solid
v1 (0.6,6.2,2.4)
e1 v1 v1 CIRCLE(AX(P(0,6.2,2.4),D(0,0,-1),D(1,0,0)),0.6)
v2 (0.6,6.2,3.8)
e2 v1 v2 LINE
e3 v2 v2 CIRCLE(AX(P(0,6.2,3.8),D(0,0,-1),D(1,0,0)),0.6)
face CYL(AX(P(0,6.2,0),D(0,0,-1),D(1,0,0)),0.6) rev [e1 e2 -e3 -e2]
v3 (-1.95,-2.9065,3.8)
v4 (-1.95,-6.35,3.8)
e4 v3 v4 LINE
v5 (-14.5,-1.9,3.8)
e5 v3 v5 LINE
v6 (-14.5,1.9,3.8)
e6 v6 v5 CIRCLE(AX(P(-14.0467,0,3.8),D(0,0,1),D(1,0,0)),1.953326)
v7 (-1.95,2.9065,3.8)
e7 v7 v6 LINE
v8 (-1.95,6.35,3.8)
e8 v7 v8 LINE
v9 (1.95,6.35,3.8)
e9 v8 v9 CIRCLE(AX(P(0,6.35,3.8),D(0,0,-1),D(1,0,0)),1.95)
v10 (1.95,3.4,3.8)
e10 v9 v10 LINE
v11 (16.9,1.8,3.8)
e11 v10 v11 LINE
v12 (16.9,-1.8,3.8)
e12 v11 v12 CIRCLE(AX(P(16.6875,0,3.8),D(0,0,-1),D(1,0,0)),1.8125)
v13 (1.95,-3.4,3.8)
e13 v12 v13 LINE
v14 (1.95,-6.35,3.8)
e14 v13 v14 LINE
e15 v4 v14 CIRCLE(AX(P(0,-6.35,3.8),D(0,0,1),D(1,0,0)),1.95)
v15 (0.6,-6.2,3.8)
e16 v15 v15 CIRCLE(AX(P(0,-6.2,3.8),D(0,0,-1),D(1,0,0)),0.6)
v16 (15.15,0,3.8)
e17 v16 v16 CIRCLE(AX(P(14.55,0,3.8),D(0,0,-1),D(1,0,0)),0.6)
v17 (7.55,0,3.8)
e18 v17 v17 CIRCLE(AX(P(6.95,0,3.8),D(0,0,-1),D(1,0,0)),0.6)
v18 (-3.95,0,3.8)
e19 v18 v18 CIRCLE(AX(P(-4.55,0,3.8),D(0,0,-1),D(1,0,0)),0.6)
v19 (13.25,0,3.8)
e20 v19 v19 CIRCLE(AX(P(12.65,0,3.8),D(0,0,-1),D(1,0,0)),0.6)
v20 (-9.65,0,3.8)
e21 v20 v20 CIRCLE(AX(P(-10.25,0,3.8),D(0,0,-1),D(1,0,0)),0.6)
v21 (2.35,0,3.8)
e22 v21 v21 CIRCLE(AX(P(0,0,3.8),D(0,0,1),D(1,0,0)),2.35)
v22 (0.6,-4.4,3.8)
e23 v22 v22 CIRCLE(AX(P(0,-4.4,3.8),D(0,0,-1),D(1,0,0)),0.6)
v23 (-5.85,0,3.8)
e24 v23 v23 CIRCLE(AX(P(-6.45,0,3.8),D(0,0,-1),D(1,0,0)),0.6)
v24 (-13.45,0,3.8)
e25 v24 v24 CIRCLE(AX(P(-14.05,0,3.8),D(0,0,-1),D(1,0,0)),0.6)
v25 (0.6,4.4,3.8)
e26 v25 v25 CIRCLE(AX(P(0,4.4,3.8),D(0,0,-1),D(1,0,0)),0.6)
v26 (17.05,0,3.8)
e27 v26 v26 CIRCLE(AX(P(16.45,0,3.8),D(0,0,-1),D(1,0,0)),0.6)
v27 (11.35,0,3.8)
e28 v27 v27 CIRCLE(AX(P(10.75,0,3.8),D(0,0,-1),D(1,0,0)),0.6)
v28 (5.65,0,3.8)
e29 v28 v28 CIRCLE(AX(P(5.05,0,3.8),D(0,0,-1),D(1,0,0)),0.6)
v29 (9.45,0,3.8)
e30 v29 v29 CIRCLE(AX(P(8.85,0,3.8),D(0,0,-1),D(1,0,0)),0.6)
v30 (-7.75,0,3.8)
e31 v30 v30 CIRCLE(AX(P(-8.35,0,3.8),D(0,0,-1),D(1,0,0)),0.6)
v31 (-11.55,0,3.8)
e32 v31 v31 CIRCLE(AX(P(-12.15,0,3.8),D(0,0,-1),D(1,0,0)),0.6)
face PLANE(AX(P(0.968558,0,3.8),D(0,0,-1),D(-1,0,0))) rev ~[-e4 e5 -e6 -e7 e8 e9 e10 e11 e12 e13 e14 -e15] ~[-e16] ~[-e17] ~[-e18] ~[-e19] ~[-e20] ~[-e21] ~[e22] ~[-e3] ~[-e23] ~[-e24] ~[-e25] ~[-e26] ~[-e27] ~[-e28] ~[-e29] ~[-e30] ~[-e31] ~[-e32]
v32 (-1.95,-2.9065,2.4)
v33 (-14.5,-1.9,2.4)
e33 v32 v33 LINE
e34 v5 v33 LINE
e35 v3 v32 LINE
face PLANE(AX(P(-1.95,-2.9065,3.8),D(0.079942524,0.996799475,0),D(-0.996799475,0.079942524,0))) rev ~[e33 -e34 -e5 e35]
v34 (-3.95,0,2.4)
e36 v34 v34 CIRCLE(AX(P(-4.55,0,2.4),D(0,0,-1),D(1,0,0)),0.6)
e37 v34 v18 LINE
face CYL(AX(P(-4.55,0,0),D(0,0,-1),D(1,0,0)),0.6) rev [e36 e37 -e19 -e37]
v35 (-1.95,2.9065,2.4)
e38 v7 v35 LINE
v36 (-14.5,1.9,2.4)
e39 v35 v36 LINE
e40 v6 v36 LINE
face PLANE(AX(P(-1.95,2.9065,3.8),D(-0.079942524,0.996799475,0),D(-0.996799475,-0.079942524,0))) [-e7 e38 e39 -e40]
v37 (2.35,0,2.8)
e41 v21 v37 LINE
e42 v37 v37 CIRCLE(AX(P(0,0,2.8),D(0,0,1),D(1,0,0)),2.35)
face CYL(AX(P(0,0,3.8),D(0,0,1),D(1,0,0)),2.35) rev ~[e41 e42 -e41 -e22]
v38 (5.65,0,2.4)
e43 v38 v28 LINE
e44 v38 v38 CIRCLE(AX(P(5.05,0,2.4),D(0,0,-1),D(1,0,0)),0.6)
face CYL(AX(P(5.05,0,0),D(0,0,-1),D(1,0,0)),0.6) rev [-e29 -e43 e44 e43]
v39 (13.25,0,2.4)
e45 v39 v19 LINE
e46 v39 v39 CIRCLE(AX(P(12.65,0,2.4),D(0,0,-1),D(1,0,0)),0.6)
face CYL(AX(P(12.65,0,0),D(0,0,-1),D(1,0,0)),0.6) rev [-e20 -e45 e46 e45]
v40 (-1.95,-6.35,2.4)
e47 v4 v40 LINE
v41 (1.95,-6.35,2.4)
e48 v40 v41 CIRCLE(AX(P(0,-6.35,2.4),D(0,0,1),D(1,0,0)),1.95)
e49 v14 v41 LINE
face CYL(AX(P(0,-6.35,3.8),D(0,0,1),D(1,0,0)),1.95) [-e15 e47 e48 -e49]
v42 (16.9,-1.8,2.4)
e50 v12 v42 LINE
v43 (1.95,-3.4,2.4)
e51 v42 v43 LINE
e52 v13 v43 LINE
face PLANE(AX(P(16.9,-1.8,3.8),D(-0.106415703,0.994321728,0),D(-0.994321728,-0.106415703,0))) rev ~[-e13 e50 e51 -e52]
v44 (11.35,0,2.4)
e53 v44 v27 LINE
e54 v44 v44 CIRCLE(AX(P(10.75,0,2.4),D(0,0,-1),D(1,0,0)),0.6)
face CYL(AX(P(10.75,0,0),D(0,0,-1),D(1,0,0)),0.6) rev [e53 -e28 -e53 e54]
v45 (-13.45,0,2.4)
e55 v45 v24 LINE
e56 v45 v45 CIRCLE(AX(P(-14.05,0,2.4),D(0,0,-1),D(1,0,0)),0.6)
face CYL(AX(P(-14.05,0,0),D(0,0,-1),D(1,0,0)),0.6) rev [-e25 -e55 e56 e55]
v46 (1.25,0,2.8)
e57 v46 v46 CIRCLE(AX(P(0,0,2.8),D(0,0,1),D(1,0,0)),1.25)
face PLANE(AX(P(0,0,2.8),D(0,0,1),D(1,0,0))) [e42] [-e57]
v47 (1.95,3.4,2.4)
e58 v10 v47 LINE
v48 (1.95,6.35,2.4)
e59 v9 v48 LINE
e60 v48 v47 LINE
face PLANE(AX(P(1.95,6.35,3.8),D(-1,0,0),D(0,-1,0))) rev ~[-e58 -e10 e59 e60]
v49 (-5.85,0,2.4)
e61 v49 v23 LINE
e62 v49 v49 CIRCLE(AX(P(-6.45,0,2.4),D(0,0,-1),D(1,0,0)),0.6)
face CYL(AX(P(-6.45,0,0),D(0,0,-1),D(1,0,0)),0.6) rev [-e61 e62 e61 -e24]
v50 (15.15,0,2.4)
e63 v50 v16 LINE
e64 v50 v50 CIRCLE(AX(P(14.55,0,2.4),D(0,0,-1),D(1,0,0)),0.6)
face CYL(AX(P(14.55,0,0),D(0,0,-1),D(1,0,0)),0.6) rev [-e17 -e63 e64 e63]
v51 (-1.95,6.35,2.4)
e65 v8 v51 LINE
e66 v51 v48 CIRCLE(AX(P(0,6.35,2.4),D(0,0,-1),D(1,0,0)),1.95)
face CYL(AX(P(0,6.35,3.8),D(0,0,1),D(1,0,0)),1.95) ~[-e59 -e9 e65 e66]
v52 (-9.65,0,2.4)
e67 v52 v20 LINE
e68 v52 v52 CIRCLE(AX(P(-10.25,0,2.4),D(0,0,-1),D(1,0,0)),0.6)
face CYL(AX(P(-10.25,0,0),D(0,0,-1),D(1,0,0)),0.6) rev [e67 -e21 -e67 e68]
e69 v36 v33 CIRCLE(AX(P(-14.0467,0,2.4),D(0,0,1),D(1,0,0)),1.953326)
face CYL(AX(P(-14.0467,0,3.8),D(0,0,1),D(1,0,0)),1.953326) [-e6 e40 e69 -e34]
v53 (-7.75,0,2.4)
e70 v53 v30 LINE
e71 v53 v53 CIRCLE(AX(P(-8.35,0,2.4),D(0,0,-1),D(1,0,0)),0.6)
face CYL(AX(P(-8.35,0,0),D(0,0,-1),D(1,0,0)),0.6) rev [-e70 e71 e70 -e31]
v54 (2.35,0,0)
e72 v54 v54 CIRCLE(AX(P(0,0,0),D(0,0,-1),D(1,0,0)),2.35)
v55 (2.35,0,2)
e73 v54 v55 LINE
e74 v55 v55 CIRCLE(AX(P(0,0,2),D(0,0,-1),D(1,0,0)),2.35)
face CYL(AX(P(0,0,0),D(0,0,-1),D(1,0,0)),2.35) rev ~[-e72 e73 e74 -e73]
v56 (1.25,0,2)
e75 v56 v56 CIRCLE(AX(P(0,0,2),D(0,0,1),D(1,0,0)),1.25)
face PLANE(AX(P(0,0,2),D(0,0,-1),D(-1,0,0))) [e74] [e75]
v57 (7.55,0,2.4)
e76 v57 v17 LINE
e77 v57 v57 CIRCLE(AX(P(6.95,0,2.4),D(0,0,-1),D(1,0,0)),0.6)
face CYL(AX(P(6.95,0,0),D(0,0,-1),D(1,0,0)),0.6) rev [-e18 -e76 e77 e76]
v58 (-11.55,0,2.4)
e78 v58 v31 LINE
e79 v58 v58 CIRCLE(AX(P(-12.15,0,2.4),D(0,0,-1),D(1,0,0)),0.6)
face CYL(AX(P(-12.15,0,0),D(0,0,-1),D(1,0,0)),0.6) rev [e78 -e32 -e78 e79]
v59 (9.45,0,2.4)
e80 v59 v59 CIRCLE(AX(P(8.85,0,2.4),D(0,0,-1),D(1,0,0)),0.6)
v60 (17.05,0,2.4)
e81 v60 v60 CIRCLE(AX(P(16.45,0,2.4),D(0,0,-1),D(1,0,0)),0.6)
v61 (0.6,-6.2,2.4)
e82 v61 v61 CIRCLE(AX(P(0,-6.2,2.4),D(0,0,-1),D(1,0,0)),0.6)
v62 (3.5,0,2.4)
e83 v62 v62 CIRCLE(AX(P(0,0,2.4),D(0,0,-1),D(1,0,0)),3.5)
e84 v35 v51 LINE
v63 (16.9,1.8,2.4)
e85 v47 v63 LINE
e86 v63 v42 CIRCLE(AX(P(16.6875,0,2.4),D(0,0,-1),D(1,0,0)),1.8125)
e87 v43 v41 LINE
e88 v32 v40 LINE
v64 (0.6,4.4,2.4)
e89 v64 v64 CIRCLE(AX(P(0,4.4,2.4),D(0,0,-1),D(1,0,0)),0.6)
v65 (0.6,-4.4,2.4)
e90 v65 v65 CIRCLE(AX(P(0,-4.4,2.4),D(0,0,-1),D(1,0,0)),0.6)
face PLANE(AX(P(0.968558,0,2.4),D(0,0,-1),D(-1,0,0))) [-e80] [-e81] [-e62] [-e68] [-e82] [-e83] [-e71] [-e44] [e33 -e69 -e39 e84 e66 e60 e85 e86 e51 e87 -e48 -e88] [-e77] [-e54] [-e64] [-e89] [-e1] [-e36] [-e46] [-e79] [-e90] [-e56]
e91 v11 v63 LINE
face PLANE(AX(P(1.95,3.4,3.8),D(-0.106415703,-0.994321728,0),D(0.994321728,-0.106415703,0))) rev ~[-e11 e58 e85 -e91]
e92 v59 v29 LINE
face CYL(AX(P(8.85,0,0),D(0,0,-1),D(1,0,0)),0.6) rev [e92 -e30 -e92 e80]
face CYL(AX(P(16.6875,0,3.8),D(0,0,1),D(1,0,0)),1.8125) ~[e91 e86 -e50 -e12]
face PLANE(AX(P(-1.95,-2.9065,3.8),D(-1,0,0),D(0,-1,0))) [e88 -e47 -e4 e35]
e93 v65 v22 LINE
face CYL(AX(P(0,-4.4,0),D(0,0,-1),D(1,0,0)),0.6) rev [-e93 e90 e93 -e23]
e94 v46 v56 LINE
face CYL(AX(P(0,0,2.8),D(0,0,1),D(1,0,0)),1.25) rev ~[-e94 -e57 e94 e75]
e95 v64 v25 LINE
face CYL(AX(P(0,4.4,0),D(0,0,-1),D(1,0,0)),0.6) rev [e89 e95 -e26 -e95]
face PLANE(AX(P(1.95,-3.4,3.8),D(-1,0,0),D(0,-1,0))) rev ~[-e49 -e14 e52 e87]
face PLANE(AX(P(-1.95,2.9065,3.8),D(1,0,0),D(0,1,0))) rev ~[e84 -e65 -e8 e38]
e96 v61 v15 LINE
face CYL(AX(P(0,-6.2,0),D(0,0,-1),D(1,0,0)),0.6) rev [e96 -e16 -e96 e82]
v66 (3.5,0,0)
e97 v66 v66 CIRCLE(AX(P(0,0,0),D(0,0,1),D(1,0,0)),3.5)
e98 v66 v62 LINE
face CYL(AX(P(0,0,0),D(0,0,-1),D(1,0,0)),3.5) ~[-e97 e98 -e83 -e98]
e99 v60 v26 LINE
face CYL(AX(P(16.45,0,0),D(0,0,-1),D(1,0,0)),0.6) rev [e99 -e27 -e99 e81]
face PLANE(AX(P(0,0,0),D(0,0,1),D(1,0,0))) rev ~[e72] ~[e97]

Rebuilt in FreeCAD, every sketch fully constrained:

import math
import FreeCAD as App
import Part
import Sketcher
from FreeCAD import Vector

doc = App.newDocument("Part")
body = doc.addObject("PartDesign::Body", "Body")

# Sketch on XY plane
sketch1 = body.newObject("Sketcher::SketchObject", "Sketch")
sketch1.AttachmentSupport = (doc.getObject("XY_Plane"), [""])
sketch1.MapMode = "FlatFace"
sketch1.addGeometry(Part.Circle(Vector(0, 0, 0), Vector(0, 0, 1), 3.5), False)
sketch1.addConstraint(Sketcher.Constraint("Coincident", 0, 3, -1, 1))
sketch1.addConstraint(Sketcher.Constraint("Diameter", 0, 7.0))
pad1 = body.newObject("PartDesign::Pad", "Pad")
pad1.Profile = sketch1
pad1.Length = 3.8

# Sketch on XY plane
sketch2 = body.newObject("Sketcher::SketchObject", "Sketch001")
sketch2.AttachmentSupport = (doc.getObject("XY_Plane"), [""])
sketch2.MapMode = "FlatFace"
sketch2.AttachmentOffset = App.Placement(Vector(0, 0, 3.8), App.Rotation())
sketch2.addGeometry(Part.Circle(Vector(0, 0, 0), Vector(0, 0, 1), 2.4), False)
sketch2.addConstraint(Sketcher.Constraint("Coincident", 0, 3, -1, 1))
sketch2.addConstraint(Sketcher.Constraint("Diameter", 0, 4.7))
pocket1 = body.newObject("PartDesign::Pocket", "Pocket")
pocket1.Profile = sketch2
pocket1.Length = 1

# Sketch on XY plane
sketch3 = body.newObject("Sketcher::SketchObject", "Sketch002")
sketch3.AttachmentSupport = (doc.getObject("XY_Plane"), [""])
sketch3.MapMode = "FlatFace"
sketch3.AttachmentOffset = App.Placement(Vector(0, 0, 2.8), App.Rotation())
sketch3.addGeometry(Part.Circle(Vector(0, 0, 0), Vector(0, 0, 1), 1.2), False)
sketch3.addConstraint(Sketcher.Constraint("Coincident", 0, 3, -1, 1))
sketch3.addConstraint(Sketcher.Constraint("Diameter", 0, 2.5))
pocket2 = body.newObject("PartDesign::Pocket", "Pocket001")
pocket2.Profile = sketch3
pocket2.Type = "ThroughAll"

# Sketch on XY plane
sketch4 = body.newObject("Sketcher::SketchObject", "Sketch003")
sketch4.AttachmentSupport = (doc.getObject("XY_Plane"), [""])
sketch4.MapMode = "FlatFace"
sketch4.addGeometry(Part.Circle(Vector(0, 0, 0), Vector(0, 0, 1), 2.4), False)
sketch4.addConstraint(Sketcher.Constraint("Coincident", 0, 3, -1, 1))
sketch4.addConstraint(Sketcher.Constraint("Diameter", 0, 4.7))
pocket3 = body.newObject("PartDesign::Pocket", "Pocket002")
pocket3.Profile = sketch4
pocket3.Length = 2
pocket3.Reversed = True

# Sketch on XY plane
sketch5 = body.newObject("Sketcher::SketchObject", "Sketch004")
sketch5.AttachmentSupport = (doc.getObject("XY_Plane"), [""])
sketch5.MapMode = "FlatFace"
sketch5.AttachmentOffset = App.Placement(Vector(0, 0, 3.8), App.Rotation())
sketch5.addGeometry(Part.LineSegment(Vector(-1.9, 6.3, 0), Vector(-1.9, 2.9, 0)), False)
sketch5.addGeometry(Part.LineSegment(Vector(-1.9, 2.9, 0), Vector(-14.5, 1.9, 0)), False)
sketch5.addGeometry(Part.ArcOfCircle(Part.Circle(Vector(-14, 0, 0), Vector(0, 0, 1), 2), math.radians(103), math.radians(257)), False)
sketch5.addGeometry(Part.LineSegment(Vector(-14.5, -1.9, 0), Vector(-1.9, -2.9, 0)), False)
sketch5.addGeometry(Part.LineSegment(Vector(-1.9, -2.9, 0), Vector(-1.9, -6.3, 0)), False)
sketch5.addGeometry(Part.ArcOfCircle(Part.Circle(Vector(0, -6.3, 0), Vector(0, 0, 1), 1.9), math.radians(180), math.radians(360)), False)
sketch5.addGeometry(Part.LineSegment(Vector(1.9, -6.3, 0), Vector(1.9, -3.4, 0)), False)
sketch5.addGeometry(Part.LineSegment(Vector(1.9, -3.4, 0), Vector(16.9, -1.8, 0)), False)
sketch5.addGeometry(Part.ArcOfCircle(Part.Circle(Vector(16.7, 0, 0), Vector(0, 0, 1), 1.8), math.radians(-83), math.radians(83)), False)
sketch5.addGeometry(Part.LineSegment(Vector(16.9, 1.8, 0), Vector(1.9, 3.4, 0)), False)
sketch5.addGeometry(Part.LineSegment(Vector(1.9, 3.4, 0), Vector(1.9, 6.3, 0)), False)
sketch5.addGeometry(Part.ArcOfCircle(Part.Circle(Vector(0, 6.3, 0), Vector(0, 0, 1), 1.9), math.radians(0), math.radians(180)), False)
sketch5.addGeometry(Part.Circle(Vector(0, 0, 0), Vector(0, 0, 1), 2.9), False)
sketch5.addConstraint(Sketcher.Constraint("Coincident", 0, 2, 1, 1))
sketch5.addConstraint(Sketcher.Constraint("Coincident", 1, 2, 2, 1))
sketch5.addConstraint(Sketcher.Constraint("Coincident", 2, 2, 3, 1))
sketch5.addConstraint(Sketcher.Constraint("Coincident", 3, 2, 4, 1))
sketch5.addConstraint(Sketcher.Constraint("Tangent", 4, 2, 5, 1))
sketch5.addConstraint(Sketcher.Constraint("Tangent", 5, 2, 6, 1))
sketch5.addConstraint(Sketcher.Constraint("Coincident", 6, 2, 7, 1))
sketch5.addConstraint(Sketcher.Constraint("Coincident", 7, 2, 8, 1))
sketch5.addConstraint(Sketcher.Constraint("Coincident", 8, 2, 9, 1))
sketch5.addConstraint(Sketcher.Constraint("Coincident", 9, 2, 10, 1))
sketch5.addConstraint(Sketcher.Constraint("Tangent", 10, 2, 11, 1))
sketch5.addConstraint(Sketcher.Constraint("Tangent", 11, 2, 0, 1))
sketch5.addConstraint(Sketcher.Constraint("Vertical", 0))
sketch5.addConstraint(Sketcher.Constraint("Vertical", 4))
sketch5.addConstraint(Sketcher.Constraint("Vertical", 6))
sketch5.addConstraint(Sketcher.Constraint("Vertical", 10))
sketch5.addConstraint(Sketcher.Constraint("Coincident", 12, 3, -1, 1))
sketch5.addConstraint(Sketcher.Constraint("Equal", 5, 11))
sketch5.addConstraint(Sketcher.Constraint("Symmetric", 5, 3, 11, 3, -1, 1))
sketch5.addConstraint(Sketcher.Constraint("Symmetric", 1, 2, 2, 2, -1))
sketch5.addConstraint(Sketcher.Constraint("Symmetric", 0, 2, 3, 2, -1))
sketch5.addConstraint(Sketcher.Constraint("Symmetric", 7, 2, 8, 2, -1))
sketch5.addConstraint(Sketcher.Constraint("Equal", 6, 10))
sketch5.addConstraint(Sketcher.Constraint("Radius", 5, 1.95))
sketch5.addConstraint(Sketcher.Constraint("Diameter", 12, 5.802))
sketch5.addConstraint(Sketcher.Constraint("DistanceY", 6, 1, 6, 2, 2.95))
sketch5.addConstraint(Sketcher.Constraint("DistanceX", 1, 2, -1, 1, 14.5))
sketch5.addConstraint(Sketcher.Constraint("DistanceY", -1, 1, 1, 2, 1.9))
sketch5.addConstraint(Sketcher.Constraint("DistanceY", 6, 2, -1, 1, 3.4))
sketch5.addConstraint(Sketcher.Constraint("DistanceX", -1, 1, 7, 2, 16.9))
sketch5.addConstraint(Sketcher.Constraint("DistanceY", 7, 2, -1, 1, 1.8))
sketch5.addConstraint(Sketcher.Constraint("Radius", 2, 1.9533))
sketch5.addConstraint(Sketcher.Constraint("Radius", 8, 1.8125))
sketch5.addConstraint(Sketcher.Constraint("DistanceY", 0, 2, 0, 1, 3.4435))
pad2 = body.newObject("PartDesign::Pad", "Pad001")
pad2.Profile = sketch5
pad2.Length = 1.4
pad2.Reversed = True

# Sketch on XY plane
sketch6 = body.newObject("Sketcher::SketchObject", "Sketch005")
sketch6.AttachmentSupport = (doc.getObject("XY_Plane"), [""])
sketch6.MapMode = "FlatFace"
sketch6.addGeometry(Part.Circle(Vector(0, 4.4, 0), Vector(0, 0, 1), 0.6), False)
sketch6.addGeometry(Part.Circle(Vector(0, 6.2, 0), Vector(0, 0, 1), 0.6), False)
sketch6.addGeometry(Part.Circle(Vector(0, -6.2, 0), Vector(0, 0, 1), 0.6), False)
sketch6.addGeometry(Part.Circle(Vector(0, -4.4, 0), Vector(0, 0, 1), 0.6), False)
sketch6.addGeometry(Part.Circle(Vector(-4.5, 0, 0), Vector(0, 0, 1), 0.6), False)
sketch6.addGeometry(Part.Circle(Vector(-6.5, 0, 0), Vector(0, 0, 1), 0.6), False)
sketch6.addGeometry(Part.Circle(Vector(-8.3, 0, 0), Vector(0, 0, 1), 0.6), False)
sketch6.addGeometry(Part.Circle(Vector(-10.2, 0, 0), Vector(0, 0, 1), 0.6), False)
sketch6.addGeometry(Part.Circle(Vector(-14.1, 0, 0), Vector(0, 0, 1), 0.6), False)
sketch6.addGeometry(Part.Circle(Vector(-12.2, 0, 0), Vector(0, 0, 1), 0.6), False)
sketch6.addGeometry(Part.Circle(Vector(5, 0, 0), Vector(0, 0, 1), 0.6), False)
sketch6.addGeometry(Part.Circle(Vector(7, 0, 0), Vector(0, 0, 1), 0.6), False)
sketch6.addGeometry(Part.Circle(Vector(8.8, 0, 0), Vector(0, 0, 1), 0.6), False)
sketch6.addGeometry(Part.Circle(Vector(12.7, 0, 0), Vector(0, 0, 1), 0.6), False)
sketch6.addGeometry(Part.Circle(Vector(14.6, 0, 0), Vector(0, 0, 1), 0.6), False)
sketch6.addGeometry(Part.Circle(Vector(10.8, 0, 0), Vector(0, 0, 1), 0.6), False)
sketch6.addGeometry(Part.Circle(Vector(16.4, 0, 0), Vector(0, 0, 1), 0.6), False)
sketch6.addConstraint(Sketcher.Constraint("Equal", 0, 1))
sketch6.addConstraint(Sketcher.Constraint("Equal", 1, 2))
sketch6.addConstraint(Sketcher.Constraint("Equal", 2, 3))
sketch6.addConstraint(Sketcher.Constraint("Equal", 3, 4))
sketch6.addConstraint(Sketcher.Constraint("Equal", 4, 5))
sketch6.addConstraint(Sketcher.Constraint("Equal", 5, 6))
sketch6.addConstraint(Sketcher.Constraint("Equal", 6, 7))
sketch6.addConstraint(Sketcher.Constraint("Equal", 7, 8))
sketch6.addConstraint(Sketcher.Constraint("Equal", 8, 9))
sketch6.addConstraint(Sketcher.Constraint("Equal", 9, 10))
sketch6.addConstraint(Sketcher.Constraint("Equal", 10, 11))
sketch6.addConstraint(Sketcher.Constraint("Equal", 11, 12))
sketch6.addConstraint(Sketcher.Constraint("Equal", 12, 13))
sketch6.addConstraint(Sketcher.Constraint("Equal", 13, 14))
sketch6.addConstraint(Sketcher.Constraint("Equal", 14, 15))
sketch6.addConstraint(Sketcher.Constraint("Equal", 15, 16))
sketch6.addConstraint(Sketcher.Constraint("Symmetric", 1, 3, 2, 3, -1, 1))
sketch6.addConstraint(Sketcher.Constraint("Symmetric", 0, 3, 3, 3, -1, 1))
sketch6.addConstraint(Sketcher.Constraint("PointOnObject", 0, 3, -2))
sketch6.addConstraint(Sketcher.Constraint("PointOnObject", 1, 3, -2))
sketch6.addConstraint(Sketcher.Constraint("PointOnObject", 4, 3, -1))
sketch6.addConstraint(Sketcher.Constraint("PointOnObject", 5, 3, -1))
sketch6.addConstraint(Sketcher.Constraint("PointOnObject", 6, 3, -1))
sketch6.addConstraint(Sketcher.Constraint("PointOnObject", 7, 3, -1))
sketch6.addConstraint(Sketcher.Constraint("PointOnObject", 8, 3, -1))
sketch6.addConstraint(Sketcher.Constraint("PointOnObject", 9, 3, -1))
sketch6.addConstraint(Sketcher.Constraint("PointOnObject", 10, 3, -1))
sketch6.addConstraint(Sketcher.Constraint("PointOnObject", 11, 3, -1))
sketch6.addConstraint(Sketcher.Constraint("PointOnObject", 12, 3, -1))
sketch6.addConstraint(Sketcher.Constraint("PointOnObject", 13, 3, -1))
sketch6.addConstraint(Sketcher.Constraint("PointOnObject", 14, 3, -1))
sketch6.addConstraint(Sketcher.Constraint("PointOnObject", 15, 3, -1))
sketch6.addConstraint(Sketcher.Constraint("PointOnObject", 16, 3, -1))
sketch6.addConstraint(Sketcher.Constraint("Diameter", 0, 1.2))
sketch6.addConstraint(Sketcher.Constraint("DistanceY", -1, 1, 0, 3, 4.4))
sketch6.addConstraint(Sketcher.Constraint("DistanceY", -1, 1, 1, 3, 6.2))
sketch6.addConstraint(Sketcher.Constraint("DistanceX", 5, 3, 4, 3, 1.9))
sketch6.addConstraint(Sketcher.Constraint("DistanceX", 6, 3, 5, 3, 1.9))
sketch6.addConstraint(Sketcher.Constraint("DistanceX", 7, 3, 6, 3, 1.9))
sketch6.addConstraint(Sketcher.Constraint("DistanceX", 8, 3, 7, 3, 3.8))
sketch6.addConstraint(Sketcher.Constraint("DistanceX", 9, 3, 7, 3, 1.9))
sketch6.addConstraint(Sketcher.Constraint("DistanceX", 4, 3, 10, 3, 9.6))
sketch6.addConstraint(Sketcher.Constraint("DistanceX", 10, 3, 11, 3, 1.9))
sketch6.addConstraint(Sketcher.Constraint("DistanceX", 11, 3, 12, 3, 1.9))
sketch6.addConstraint(Sketcher.Constraint("DistanceX", 12, 3, 13, 3, 3.8))
sketch6.addConstraint(Sketcher.Constraint("DistanceX", 13, 3, 14, 3, 1.9))
sketch6.addConstraint(Sketcher.Constraint("DistanceX", 12, 3, 15, 3, 1.9))
sketch6.addConstraint(Sketcher.Constraint("DistanceX", 14, 3, 16, 3, 1.9))
sketch6.addConstraint(Sketcher.Constraint("DistanceX", 4, 3, -1, 1, 4.55))
pocket4 = body.newObject("PartDesign::Pocket", "Pocket003")
pocket4.Profile = sketch6
pocket4.Type = "ThroughAll"
pocket4.Reversed = True

doc.recompute()
